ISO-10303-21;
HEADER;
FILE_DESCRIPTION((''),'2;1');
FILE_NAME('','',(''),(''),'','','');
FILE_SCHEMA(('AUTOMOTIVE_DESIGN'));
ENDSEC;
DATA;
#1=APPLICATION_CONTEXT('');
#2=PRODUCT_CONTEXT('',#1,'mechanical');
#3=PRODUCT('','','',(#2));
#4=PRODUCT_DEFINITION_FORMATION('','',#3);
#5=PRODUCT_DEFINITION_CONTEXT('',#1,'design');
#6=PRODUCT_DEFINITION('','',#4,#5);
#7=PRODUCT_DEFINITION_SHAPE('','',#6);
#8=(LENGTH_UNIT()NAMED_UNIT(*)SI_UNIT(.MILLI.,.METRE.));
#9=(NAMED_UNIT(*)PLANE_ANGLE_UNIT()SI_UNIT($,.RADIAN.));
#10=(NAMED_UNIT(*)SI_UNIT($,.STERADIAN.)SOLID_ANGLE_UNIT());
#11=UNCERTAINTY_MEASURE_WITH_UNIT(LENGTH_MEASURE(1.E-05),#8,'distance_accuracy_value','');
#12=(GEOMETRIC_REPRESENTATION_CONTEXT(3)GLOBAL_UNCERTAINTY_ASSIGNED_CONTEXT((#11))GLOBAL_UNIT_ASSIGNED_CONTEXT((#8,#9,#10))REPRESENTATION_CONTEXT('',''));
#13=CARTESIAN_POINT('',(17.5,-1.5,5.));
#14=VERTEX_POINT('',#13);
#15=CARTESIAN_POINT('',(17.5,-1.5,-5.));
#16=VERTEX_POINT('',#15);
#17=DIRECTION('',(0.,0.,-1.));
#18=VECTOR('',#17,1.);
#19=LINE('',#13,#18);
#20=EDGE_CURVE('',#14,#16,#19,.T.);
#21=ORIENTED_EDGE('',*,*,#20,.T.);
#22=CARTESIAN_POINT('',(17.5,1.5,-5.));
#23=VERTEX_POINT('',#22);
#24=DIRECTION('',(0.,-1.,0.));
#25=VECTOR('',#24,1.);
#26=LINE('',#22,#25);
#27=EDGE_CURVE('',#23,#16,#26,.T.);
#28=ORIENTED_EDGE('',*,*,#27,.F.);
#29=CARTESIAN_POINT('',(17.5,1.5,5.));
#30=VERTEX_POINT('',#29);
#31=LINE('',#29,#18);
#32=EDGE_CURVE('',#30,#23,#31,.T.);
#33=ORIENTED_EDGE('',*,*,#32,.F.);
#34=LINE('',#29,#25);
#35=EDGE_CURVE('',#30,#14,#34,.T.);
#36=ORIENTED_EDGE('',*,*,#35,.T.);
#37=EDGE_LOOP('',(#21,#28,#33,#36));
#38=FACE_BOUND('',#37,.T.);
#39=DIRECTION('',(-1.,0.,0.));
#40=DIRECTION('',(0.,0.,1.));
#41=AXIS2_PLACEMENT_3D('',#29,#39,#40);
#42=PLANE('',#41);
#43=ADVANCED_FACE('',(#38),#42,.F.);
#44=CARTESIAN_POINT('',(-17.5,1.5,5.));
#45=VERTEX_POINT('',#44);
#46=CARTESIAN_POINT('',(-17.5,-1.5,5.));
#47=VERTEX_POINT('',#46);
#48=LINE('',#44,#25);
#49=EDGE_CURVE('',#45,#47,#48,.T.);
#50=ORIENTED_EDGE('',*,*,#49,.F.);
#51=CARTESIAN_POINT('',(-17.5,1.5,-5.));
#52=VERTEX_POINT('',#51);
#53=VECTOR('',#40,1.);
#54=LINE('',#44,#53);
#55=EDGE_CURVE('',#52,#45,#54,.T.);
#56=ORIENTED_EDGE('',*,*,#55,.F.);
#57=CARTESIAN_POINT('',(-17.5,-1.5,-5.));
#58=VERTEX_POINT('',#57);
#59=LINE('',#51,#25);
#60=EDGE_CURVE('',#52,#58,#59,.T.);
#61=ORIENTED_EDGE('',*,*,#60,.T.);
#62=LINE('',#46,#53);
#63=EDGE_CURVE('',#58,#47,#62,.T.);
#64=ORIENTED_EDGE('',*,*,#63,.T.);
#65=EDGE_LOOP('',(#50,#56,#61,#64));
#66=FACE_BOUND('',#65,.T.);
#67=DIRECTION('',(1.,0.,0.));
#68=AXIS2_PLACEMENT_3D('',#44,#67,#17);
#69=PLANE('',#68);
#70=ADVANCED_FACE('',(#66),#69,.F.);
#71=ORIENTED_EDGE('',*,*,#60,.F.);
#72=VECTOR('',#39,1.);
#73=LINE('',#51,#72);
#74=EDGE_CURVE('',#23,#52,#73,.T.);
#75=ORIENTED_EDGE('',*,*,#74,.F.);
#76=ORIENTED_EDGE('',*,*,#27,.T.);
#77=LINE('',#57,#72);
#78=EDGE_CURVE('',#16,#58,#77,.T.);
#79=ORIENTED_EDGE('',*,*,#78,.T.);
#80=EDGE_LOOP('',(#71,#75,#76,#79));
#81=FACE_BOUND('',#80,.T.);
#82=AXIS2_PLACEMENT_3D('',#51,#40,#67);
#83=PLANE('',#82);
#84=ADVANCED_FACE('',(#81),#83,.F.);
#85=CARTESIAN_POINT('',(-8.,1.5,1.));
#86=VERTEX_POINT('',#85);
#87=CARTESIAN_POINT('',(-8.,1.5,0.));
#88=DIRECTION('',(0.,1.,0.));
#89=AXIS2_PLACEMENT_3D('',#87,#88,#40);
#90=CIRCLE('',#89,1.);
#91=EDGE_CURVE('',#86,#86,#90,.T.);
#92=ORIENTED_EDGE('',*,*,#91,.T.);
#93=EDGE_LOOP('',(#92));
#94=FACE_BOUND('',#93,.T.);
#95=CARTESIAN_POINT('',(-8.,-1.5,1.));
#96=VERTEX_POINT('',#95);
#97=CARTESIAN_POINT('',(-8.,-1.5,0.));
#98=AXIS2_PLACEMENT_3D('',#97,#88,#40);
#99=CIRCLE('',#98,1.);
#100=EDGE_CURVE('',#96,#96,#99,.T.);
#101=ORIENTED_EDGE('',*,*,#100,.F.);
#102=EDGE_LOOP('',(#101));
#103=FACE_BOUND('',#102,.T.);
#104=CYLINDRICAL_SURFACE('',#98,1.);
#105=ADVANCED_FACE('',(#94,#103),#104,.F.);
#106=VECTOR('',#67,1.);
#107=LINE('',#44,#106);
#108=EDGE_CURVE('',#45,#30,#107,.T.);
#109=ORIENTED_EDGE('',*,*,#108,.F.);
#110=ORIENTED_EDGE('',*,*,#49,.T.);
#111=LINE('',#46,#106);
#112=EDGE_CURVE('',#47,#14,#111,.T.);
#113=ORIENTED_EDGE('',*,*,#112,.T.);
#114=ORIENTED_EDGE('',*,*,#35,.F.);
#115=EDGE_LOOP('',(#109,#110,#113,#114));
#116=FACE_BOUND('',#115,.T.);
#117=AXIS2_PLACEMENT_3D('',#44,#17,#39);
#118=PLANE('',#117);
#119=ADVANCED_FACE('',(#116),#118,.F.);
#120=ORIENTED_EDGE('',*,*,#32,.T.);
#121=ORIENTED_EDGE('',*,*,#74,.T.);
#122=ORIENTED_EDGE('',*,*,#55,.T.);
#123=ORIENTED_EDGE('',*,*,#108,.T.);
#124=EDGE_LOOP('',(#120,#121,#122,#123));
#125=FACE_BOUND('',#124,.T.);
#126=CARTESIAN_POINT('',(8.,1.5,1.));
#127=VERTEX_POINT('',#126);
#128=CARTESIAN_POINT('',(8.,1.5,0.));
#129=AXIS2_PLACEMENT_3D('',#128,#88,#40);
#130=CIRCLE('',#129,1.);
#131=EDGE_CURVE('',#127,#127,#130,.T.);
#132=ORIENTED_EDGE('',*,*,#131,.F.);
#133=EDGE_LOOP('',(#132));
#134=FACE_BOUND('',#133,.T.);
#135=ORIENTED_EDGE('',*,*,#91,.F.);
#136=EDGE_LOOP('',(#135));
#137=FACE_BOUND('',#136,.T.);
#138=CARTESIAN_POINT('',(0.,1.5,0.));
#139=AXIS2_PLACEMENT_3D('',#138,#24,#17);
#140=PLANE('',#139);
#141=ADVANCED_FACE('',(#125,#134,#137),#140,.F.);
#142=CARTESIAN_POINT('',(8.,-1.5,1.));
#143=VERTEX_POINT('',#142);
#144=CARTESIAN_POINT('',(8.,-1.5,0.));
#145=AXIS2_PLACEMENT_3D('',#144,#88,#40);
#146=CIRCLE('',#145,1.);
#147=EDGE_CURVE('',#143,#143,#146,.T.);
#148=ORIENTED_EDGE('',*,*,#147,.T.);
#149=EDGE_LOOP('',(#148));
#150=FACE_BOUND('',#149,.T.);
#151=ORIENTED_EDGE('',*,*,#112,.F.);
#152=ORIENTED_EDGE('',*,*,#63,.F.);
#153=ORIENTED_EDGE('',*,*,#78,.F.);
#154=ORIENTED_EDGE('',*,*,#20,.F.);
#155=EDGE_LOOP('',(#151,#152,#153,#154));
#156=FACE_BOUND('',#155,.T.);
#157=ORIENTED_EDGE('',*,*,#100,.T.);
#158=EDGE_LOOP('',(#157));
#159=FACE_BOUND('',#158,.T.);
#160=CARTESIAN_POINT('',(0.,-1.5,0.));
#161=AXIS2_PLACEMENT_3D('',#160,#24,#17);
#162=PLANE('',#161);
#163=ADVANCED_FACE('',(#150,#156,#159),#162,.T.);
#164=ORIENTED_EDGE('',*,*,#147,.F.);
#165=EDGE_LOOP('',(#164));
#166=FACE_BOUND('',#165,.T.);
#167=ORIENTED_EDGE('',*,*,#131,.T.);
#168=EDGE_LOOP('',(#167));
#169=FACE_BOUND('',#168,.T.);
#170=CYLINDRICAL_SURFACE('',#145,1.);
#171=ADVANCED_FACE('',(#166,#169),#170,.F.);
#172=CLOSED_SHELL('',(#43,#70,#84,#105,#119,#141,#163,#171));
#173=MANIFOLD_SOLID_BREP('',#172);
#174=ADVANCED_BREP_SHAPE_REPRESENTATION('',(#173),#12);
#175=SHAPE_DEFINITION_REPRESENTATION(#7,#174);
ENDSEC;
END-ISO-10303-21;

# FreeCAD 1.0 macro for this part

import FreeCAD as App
import Part
import Sketcher
Q = App.Units.Quantity


def add_polygon(sketch, points):
    """Adds a closed chain of lines whose ends are joined by coincident constraints."""
    first, n = sketch.GeometryCount, len(points)
    for a, b in zip(points, points[1:] + points[:1]):
        sketch.addGeometry(Part.LineSegment(App.Vector(*a, 0), App.Vector(*b, 0)), False)
    for i in range(n):
        sketch.addConstraint(Sketcher.Constraint("Coincident", first + i, 2, first + (i + 1) % n, 1))

doc = App.newDocument("Part")
body = doc.addObject("PartDesign::Body", "Body")

sketch1 = body.newObject("Sketcher::SketchObject", "Sketch")
sketch1.AttachmentSupport = (doc.getObject("XZ_Plane"), [""])
sketch1.MapMode = "FlatFace"
add_polygon(sketch1, [(-18, -5), (-18, 5), (18, 5), (18, -5)])
sketch1.addConstraint(Sketcher.Constraint("Vertical", 0))
sketch1.addConstraint(Sketcher.Constraint("Horizontal", 1))
sketch1.addConstraint(Sketcher.Constraint("Vertical", 2))
sketch1.addConstraint(Sketcher.Constraint("Horizontal", 3))
sketch1.addConstraint(Sketcher.Constraint("Symmetric", 0, 2, 2, 2, -1, 1))
sketch1.addConstraint(Sketcher.Constraint("DistanceX", 1, 1, 1, 2, Q("35 mm")))
sketch1.addConstraint(Sketcher.Constraint("DistanceY", 0, 1, 0, 2, Q("10 mm")))
pad1 = body.newObject("PartDesign::Pad", "Pad")
pad1.Profile = sketch1
pad1.Length = 3
pad1.Midplane = True

sketch2 = body.newObject("Sketcher::SketchObject", "Sketch001")
sketch2.AttachmentSupport = (doc.getObject("XZ_Plane"), [""])
sketch2.MapMode = "FlatFace"
sketch2.AttachmentOffset = App.Placement(App.Vector(0, 0, -1.5), App.Rotation())
sketch2.addGeometry(Part.Circle(App.Vector(-8, 0, 0), App.Vector(0, 0, 1), 1), False)
sketch2.addGeometry(Part.Circle(App.Vector(8, 0, 0), App.Vector(0, 0, 1), 1), False)
sketch2.addConstraint(Sketcher.Constraint("Equal", 0, 1))
sketch2.addConstraint(Sketcher.Constraint("Symmetric", 0, 3, 1, 3, -1, 1))
sketch2.addConstraint(Sketcher.Constraint("PointOnObject", 0, 3, -1))
sketch2.addConstraint(Sketcher.Constraint("Diameter", 0, Q("2 mm")))
sketch2.addConstraint(Sketcher.Constraint("DistanceX", 0, 3, -1, 1, Q("8 mm")))
pocket1 = body.newObject("PartDesign::Pocket", "Pocket")
pocket1.Profile = sketch2
pocket1.Type = "ThroughAll"
pocket1.Reversed = True

doc.recompute()
